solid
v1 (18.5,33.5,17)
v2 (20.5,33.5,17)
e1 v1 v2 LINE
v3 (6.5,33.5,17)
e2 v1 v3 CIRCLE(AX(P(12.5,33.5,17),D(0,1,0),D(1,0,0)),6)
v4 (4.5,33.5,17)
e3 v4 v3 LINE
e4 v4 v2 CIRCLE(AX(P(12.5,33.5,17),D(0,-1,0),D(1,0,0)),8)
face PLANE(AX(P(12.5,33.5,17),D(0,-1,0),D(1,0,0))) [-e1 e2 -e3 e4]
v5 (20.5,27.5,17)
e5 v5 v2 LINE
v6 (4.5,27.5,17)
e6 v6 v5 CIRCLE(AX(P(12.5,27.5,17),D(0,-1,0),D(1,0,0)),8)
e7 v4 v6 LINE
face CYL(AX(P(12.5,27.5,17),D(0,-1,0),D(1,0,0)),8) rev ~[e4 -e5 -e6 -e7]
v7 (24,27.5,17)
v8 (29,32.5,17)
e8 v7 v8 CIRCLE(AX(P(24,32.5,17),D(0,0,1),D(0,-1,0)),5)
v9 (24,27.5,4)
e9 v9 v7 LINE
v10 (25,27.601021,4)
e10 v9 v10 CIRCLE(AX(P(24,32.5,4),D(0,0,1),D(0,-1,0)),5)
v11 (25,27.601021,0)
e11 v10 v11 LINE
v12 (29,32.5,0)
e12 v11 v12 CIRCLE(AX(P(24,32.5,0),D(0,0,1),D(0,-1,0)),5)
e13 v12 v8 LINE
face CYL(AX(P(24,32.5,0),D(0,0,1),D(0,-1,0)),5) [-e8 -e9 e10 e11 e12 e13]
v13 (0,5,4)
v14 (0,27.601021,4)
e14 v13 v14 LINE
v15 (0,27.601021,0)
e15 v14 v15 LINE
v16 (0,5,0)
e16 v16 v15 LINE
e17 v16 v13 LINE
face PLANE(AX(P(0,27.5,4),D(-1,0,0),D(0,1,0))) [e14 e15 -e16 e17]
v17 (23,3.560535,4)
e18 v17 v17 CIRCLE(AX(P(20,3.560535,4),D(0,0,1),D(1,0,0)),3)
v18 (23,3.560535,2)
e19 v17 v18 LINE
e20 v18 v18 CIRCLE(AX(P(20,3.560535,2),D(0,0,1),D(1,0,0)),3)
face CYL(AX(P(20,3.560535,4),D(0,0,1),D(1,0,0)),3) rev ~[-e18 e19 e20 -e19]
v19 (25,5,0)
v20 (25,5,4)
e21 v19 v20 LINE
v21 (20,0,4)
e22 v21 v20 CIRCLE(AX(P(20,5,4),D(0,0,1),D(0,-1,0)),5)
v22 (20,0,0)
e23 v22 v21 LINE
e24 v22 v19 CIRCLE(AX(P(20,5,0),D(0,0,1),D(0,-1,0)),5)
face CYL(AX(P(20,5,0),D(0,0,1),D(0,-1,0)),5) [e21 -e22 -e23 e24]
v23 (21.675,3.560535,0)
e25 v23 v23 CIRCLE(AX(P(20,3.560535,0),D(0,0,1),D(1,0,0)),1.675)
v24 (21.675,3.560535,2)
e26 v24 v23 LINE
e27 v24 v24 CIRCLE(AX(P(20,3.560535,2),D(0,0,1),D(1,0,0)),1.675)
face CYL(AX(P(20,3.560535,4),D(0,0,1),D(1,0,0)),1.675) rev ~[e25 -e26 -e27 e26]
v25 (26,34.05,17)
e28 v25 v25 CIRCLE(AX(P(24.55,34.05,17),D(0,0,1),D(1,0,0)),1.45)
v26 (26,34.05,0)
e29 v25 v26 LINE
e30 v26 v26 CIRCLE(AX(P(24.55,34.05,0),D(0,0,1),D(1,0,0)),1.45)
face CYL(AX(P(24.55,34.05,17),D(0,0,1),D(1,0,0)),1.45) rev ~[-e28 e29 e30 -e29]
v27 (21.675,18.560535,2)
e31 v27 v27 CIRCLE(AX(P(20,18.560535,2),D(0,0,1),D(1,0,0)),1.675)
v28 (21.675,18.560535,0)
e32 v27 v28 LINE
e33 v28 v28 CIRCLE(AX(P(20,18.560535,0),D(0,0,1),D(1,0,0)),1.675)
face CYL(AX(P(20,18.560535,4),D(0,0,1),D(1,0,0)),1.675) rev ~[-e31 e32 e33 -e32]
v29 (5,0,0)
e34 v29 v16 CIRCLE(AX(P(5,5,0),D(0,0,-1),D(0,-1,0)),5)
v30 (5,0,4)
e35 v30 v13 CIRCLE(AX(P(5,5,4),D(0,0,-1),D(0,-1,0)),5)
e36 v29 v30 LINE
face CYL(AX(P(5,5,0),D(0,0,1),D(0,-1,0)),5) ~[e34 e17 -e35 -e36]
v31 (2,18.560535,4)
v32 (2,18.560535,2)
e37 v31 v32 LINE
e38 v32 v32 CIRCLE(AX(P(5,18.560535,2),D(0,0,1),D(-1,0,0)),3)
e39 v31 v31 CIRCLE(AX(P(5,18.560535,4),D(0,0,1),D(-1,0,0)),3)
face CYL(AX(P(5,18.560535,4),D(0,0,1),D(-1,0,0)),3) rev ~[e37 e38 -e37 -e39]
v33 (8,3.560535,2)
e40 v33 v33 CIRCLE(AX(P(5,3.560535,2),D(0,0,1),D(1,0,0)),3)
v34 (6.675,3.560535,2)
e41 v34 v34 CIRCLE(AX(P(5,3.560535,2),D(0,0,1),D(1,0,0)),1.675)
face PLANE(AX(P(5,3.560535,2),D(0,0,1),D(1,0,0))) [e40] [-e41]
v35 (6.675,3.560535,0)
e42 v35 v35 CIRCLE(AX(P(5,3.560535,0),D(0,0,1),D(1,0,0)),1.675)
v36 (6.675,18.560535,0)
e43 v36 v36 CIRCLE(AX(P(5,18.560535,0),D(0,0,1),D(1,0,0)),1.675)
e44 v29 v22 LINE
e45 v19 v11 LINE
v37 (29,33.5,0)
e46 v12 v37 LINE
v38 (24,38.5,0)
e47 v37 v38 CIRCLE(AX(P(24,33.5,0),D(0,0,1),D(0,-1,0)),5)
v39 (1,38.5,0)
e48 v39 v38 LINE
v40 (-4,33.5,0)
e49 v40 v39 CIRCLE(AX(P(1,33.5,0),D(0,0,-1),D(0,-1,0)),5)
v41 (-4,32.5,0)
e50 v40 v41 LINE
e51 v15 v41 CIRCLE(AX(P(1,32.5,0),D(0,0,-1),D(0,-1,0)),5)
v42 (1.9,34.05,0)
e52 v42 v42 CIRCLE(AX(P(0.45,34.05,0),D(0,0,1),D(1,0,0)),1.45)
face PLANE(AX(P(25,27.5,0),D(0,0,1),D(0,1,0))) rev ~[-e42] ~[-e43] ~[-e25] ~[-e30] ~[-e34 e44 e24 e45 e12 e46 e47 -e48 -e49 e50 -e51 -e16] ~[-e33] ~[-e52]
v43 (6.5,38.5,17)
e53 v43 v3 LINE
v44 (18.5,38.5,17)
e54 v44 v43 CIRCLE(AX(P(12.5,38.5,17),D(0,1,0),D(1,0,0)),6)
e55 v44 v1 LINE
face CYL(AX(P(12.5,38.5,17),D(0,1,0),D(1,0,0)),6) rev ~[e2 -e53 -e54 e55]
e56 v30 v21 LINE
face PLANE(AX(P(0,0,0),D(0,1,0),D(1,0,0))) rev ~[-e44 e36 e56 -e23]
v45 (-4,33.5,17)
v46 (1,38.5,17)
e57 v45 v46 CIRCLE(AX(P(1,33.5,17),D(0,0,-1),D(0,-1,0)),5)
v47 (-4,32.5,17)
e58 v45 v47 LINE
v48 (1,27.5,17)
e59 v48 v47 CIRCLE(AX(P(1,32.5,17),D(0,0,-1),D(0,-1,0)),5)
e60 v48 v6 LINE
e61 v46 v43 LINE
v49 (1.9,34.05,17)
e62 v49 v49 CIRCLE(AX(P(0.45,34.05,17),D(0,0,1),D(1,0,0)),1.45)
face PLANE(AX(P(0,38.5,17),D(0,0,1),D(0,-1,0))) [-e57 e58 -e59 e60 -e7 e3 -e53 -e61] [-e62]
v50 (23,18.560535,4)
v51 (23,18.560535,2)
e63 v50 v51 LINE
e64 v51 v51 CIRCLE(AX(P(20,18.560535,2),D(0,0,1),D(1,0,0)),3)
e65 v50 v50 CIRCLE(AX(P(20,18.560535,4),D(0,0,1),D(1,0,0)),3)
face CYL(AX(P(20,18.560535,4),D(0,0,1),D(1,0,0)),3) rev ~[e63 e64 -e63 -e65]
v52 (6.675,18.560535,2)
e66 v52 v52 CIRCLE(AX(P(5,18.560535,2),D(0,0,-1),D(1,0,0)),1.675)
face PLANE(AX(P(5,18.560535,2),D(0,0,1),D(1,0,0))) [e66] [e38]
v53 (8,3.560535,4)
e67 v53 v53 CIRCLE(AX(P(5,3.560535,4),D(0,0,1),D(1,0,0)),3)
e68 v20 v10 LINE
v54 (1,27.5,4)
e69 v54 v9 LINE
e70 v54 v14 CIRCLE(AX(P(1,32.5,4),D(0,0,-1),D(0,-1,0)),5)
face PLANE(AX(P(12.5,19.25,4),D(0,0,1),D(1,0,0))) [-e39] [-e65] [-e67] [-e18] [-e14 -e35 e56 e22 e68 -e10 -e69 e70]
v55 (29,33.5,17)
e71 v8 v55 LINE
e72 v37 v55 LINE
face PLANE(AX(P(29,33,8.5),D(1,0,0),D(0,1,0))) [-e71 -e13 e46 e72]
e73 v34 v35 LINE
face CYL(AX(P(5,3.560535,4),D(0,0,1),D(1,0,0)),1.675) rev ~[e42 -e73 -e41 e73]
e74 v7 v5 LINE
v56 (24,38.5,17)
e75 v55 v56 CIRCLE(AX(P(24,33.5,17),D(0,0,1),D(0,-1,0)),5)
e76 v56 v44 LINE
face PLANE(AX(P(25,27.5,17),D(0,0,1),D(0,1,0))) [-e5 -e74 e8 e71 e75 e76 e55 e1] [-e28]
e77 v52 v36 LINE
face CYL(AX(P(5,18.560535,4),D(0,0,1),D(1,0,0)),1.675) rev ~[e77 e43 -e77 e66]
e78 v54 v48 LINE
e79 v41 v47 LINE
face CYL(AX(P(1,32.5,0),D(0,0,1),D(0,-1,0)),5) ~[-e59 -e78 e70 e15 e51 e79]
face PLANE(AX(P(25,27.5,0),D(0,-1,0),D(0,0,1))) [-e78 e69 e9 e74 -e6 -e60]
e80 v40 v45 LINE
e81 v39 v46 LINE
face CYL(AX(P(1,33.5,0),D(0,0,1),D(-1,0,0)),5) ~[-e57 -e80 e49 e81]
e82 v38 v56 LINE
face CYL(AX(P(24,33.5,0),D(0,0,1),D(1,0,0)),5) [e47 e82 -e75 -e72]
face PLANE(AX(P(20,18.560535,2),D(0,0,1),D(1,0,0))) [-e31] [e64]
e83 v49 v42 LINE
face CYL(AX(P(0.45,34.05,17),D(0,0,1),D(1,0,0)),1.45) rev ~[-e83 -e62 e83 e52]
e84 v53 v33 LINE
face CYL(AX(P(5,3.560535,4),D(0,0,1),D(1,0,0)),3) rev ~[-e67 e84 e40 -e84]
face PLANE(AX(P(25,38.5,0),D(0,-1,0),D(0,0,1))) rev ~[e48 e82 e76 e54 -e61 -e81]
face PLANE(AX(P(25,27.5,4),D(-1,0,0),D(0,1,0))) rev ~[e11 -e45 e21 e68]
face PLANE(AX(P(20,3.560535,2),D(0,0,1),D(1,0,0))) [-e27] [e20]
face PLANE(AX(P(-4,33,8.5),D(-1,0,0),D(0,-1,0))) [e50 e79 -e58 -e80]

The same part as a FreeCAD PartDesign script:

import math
import FreeCAD as App
import Part
import Sketcher


def edges_at(feature, points):
    """Names of the edges that pass closest to the given points."""
    edges = feature.Shape.Edges
    near = lambda p: min(range(len(edges)), key=lambda i: edges[i].distToShape(Part.Vertex(*p))[0])
    return sorted({f"Edge{near(p) + 1}" for p in points})


def add_polygon(sketch, points):
    """Adds a closed chain of lines whose ends are joined by coincident constraints."""
    first, n = sketch.GeometryCount, len(points)
    for a, b in zip(points, points[1:] + points[:1]):
        sketch.addGeometry(Part.LineSegment(App.Vector(*a, 0), App.Vector(*b, 0)), False)
    for i in range(n):
        sketch.addConstraint(Sketcher.Constraint("Coincident", first + i, 2, first + (i + 1) % n, 1))

doc = App.newDocument("Part")
body = doc.addObject("PartDesign::Body", "Body")

sketch1 = body.newObject("Sketcher::SketchObject", "Sketch")
sketch1.AttachmentSupport = (doc.getObject("XY_Plane"), [""])
sketch1.MapMode = "FlatFace"
add_polygon(sketch1, [(0, 38.5), (0, 0), (25, 0), (25, 38.5)])
sketch1.addConstraint(Sketcher.Constraint("Vertical", 0))
sketch1.addConstraint(Sketcher.Constraint("Horizontal", 1))
sketch1.addConstraint(Sketcher.Constraint("Vertical", 2))
sketch1.addConstraint(Sketcher.Constraint("Horizontal", 3))
sketch1.addConstraint(Sketcher.Constraint("Coincident", 0, 2, -1, 1))
sketch1.addConstraint(Sketcher.Constraint("DistanceX", 1, 1, 1, 2, 25.0))
sketch1.addConstraint(Sketcher.Constraint("DistanceY", 0, 2, 0, 1, 38.5))
pad1 = body.newObject("PartDesign::Pad", "Pad")
pad1.Profile = sketch1
pad1.Length = 4

sketch2 = body.newObject("Sketcher::SketchObject", "Sketch001")
sketch2.AttachmentSupport = (doc.getObject("XY_Plane"), [""])
sketch2.MapMode = "FlatFace"
sketch2.AttachmentOffset = App.Placement(App.Vector(0, 0, 4), App.Rotation())
sketch2.addGeometry(Part.Circle(App.Vector(5, 18.560535, 0), App.Vector(0, 0, 1), 1.675), False)
sketch2.addGeometry(Part.Circle(App.Vector(20, 18.560535, 0), App.Vector(0, 0, 1), 1.675), False)
sketch2.addGeometry(Part.Circle(App.Vector(20, 3.560535, 0), App.Vector(0, 0, 1), 1.675), False)
sketch2.addGeometry(Part.Circle(App.Vector(5, 3.560535, 0), App.Vector(0, 0, 1), 1.675), False)
sketch2.addConstraint(Sketcher.Constraint("Equal", 0, 1))
sketch2.addConstraint(Sketcher.Constraint("Equal", 1, 2))
sketch2.addConstraint(Sketcher.Constraint("Equal", 2, 3))
sketch2.addConstraint(Sketcher.Constraint("Horizontal", 0, 3, 1, 3))
sketch2.addConstraint(Sketcher.Constraint("Horizontal", 2, 3, 3, 3))
sketch2.addConstraint(Sketcher.Constraint("Vertical", 1, 3, 2, 3))
sketch2.addConstraint(Sketcher.Constraint("Vertical", 0, 3, 3, 3))
sketch2.addConstraint(Sketcher.Constraint("Diameter", 0, 3.35))
sketch2.addConstraint(Sketcher.Constraint("DistanceX", -1, 1, 0, 3, 5.0))
sketch2.addConstraint(Sketcher.Constraint("DistanceX", -1, 1, 1, 3, 20.0))
sketch2.addConstraint(Sketcher.Constraint("DistanceY", 2, 3, 1, 3, 15.0))
sketch2.addConstraint(Sketcher.Constraint("DistanceY", -1, 1, 0, 3, 18.560535))
pocket1 = body.newObject("PartDesign::Pocket", "Pocket")
pocket1.Profile = sketch2
pocket1.Length = 25

sketch3 = body.newObject("Sketcher::SketchObject", "Sketch002")
sketch3.AttachmentSupport = (doc.getObject("XY_Plane"), [""])
sketch3.MapMode = "FlatFace"
sketch3.AttachmentOffset = App.Placement(App.Vector(0, 0, 4), App.Rotation())
add_polygon(sketch3, [(0, 38.5), (0, 27.5), (25, 27.5), (25, 38.5)])
sketch3.addConstraint(Sketcher.Constraint("Vertical", 0))
sketch3.addConstraint(Sketcher.Constraint("Horizontal", 1))
sketch3.addConstraint(Sketcher.Constraint("Vertical", 2))
sketch3.addConstraint(Sketcher.Constraint("Horizontal", 3))
sketch3.addConstraint(Sketcher.Constraint("PointOnObject", 0, 2, -2))
sketch3.addConstraint(Sketcher.Constraint("DistanceX", 1, 1, 1, 2, 25.0))
sketch3.addConstraint(Sketcher.Constraint("DistanceY", 0, 2, 0, 1, 11.0))
sketch3.addConstraint(Sketcher.Constraint("DistanceY", -1, 1, 0, 2, 27.5))
pad2 = body.newObject("PartDesign::Pad", "Pad001")
pad2.Profile = sketch3
pad2.Length = 13

sketch4 = body.newObject("Sketcher::SketchObject", "Sketch003")
sketch4.AttachmentSupport = (doc.getObject("XZ_Plane"), [""])
sketch4.MapMode = "FlatFace"
sketch4.AttachmentOffset = App.Placement(App.Vector(0, 0, -38.5), App.Rotation())
sketch4.addGeometry(Part.ArcOfCircle(Part.Circle(App.Vector(12.5, 17, 0), App.Vector(0, 0, 1), 6), math.radians(180), math.radians(360)), False)
sketch4.addGeometry(Part.LineSegment(App.Vector(6.5, 17, 0), App.Vector(18.5, 17, 0)), False)
sketch4.addConstraint(Sketcher.Constraint("Coincident", 0, 1, 1, 1))
sketch4.addConstraint(Sketcher.Constraint("Coincident", 1, 2, 0, 2))
sketch4.addConstraint(Sketcher.Constraint("Horizontal", 1))
sketch4.addConstraint(Sketcher.Constraint("Radius", 0, 6.0))
sketch4.addConstraint(Sketcher.Constraint("DistanceY", -1, 1, 0, 3, 17.0))
sketch4.addConstraint(Sketcher.Constraint("DistanceY", -1, 1, 0, 1, 17.0))
sketch4.addConstraint(Sketcher.Constraint("DistanceX", -1, 1, 0, 3, 12.5))
pocket2 = body.newObject("PartDesign::Pocket", "Pocket001")
pocket2.Profile = sketch4
pocket2.Length = 6
pocket2.Reversed = True

sketch5 = body.newObject("Sketcher::SketchObject", "Sketch004")
sketch5.AttachmentSupport = (doc.getObject("XZ_Plane"), [""])
sketch5.MapMode = "FlatFace"
sketch5.AttachmentOffset = App.Placement(App.Vector(0, 0, -27.5), App.Rotation())
sketch5.addGeometry(Part.Circle(App.Vector(12.5, 17, 0), App.Vector(0, 0, 1), 8), False)
sketch5.addConstraint(Sketcher.Constraint("Diameter", 0, 16.0))
sketch5.addConstraint(Sketcher.Constraint("DistanceY", -1, 1, 0, 3, 17.0))
sketch5.addConstraint(Sketcher.Constraint("DistanceX", -1, 1, 0, 3, 12.5))
pocket3 = body.newObject("PartDesign::Pocket", "Pocket002")
pocket3.Profile = sketch5
pocket3.Length = 6

sketch6 = body.newObject("Sketcher::SketchObject", "Sketch005")
sketch6.AttachmentSupport = (doc.getObject("XY_Plane"), [""])
sketch6.MapMode = "FlatFace"
sketch6.AttachmentOffset = App.Placement(App.Vector(0, 0, 4), App.Rotation())
sketch6.addGeometry(Part.Circle(App.Vector(5, 18.560535, 0), App.Vector(0, 0, 1), 3), False)
sketch6.addGeometry(Part.Circle(App.Vector(5, 18.560535, 0), App.Vector(0, 0, 1), 1.675), False)
sketch6.addGeometry(Part.Circle(App.Vector(20, 18.560535, 0), App.Vector(0, 0, 1), 3), False)
sketch6.addGeometry(Part.Circle(App.Vector(20, 18.560535, 0), App.Vector(0, 0, 1), 1.675), False)
sketch6.addGeometry(Part.Circle(App.Vector(20, 3.560535, 0), App.Vector(0, 0, 1), 3), False)
sketch6.addGeometry(Part.Circle(App.Vector(20, 3.560535, 0), App.Vector(0, 0, 1), 1.675), False)
sketch6.addGeometry(Part.Circle(App.Vector(5, 3.560535, 0), App.Vector(0, 0, 1), 3), False)
sketch6.addGeometry(Part.Circle(App.Vector(5, 3.560535, 0), App.Vector(0, 0, 1), 1.675), False)
sketch6.addConstraint(Sketcher.Constraint("Coincident", 1, 3, 0, 3))
sketch6.addConstraint(Sketcher.Constraint("Coincident", 3, 3, 2, 3))
sketch6.addConstraint(Sketcher.Constraint("Coincident", 5, 3, 4, 3))
sketch6.addConstraint(Sketcher.Constraint("Coincident", 7, 3, 6, 3))
sketch6.addConstraint(Sketcher.Constraint("Equal", 0, 2))
sketch6.addConstraint(Sketcher.Constraint("Equal", 1, 3))
sketch6.addConstraint(Sketcher.Constraint("Equal", 2, 4))
sketch6.addConstraint(Sketcher.Constraint("Equal", 3, 5))
sketch6.addConstraint(Sketcher.Constraint("Equal", 4, 6))
sketch6.addConstraint(Sketcher.Constraint("Equal", 5, 7))
sketch6.addConstraint(Sketcher.Constraint("Horizontal", 1, 3, 2, 3))
sketch6.addConstraint(Sketcher.Constraint("Horizontal", 5, 3, 6, 3))
sketch6.addConstraint(Sketcher.Constraint("Vertical", 3, 3, 4, 3))
sketch6.addConstraint(Sketcher.Constraint("Vertical", 1, 3, 6, 3))
sketch6.addConstraint(Sketcher.Constraint("Diameter", 0, 6.0))
sketch6.addConstraint(Sketcher.Constraint("Diameter", 1, 3.35))
sketch6.addConstraint(Sketcher.Constraint("DistanceX", -1, 1, 0, 3, 5.0))
sketch6.addConstraint(Sketcher.Constraint("DistanceX", -1, 1, 2, 3, 20.0))
sketch6.addConstraint(Sketcher.Constraint("DistanceY", 4, 3, 2, 3, 15.0))
sketch6.addConstraint(Sketcher.Constraint("DistanceY", -1, 1, 0, 3, 18.560535))
pocket4 = body.newObject("PartDesign::Pocket", "Pocket003")
pocket4.Profile = sketch6
pocket4.Length = 2

sketch7 = body.newObject("Sketcher::SketchObject", "Sketch006")
sketch7.AttachmentSupport = (doc.getObject("YZ_Plane"), [""])
sketch7.MapMode = "FlatFace"
add_polygon(sketch7, [(38.5, 17), (38.5, 0), (27.5, 0), (27.5, 17)])
sketch7.addConstraint(Sketcher.Constraint("Vertical", 0))
sketch7.addConstraint(Sketcher.Constraint("Horizontal", 1))
sketch7.addConstraint(Sketcher.Constraint("Vertical", 2))
sketch7.addConstraint(Sketcher.Constraint("Horizontal", 3))
sketch7.addConstraint(Sketcher.Constraint("PointOnObject", 0, 2, -1))
sketch7.addConstraint(Sketcher.Constraint("DistanceX", 1, 2, 1, 1, 11.0))
sketch7.addConstraint(Sketcher.Constraint("DistanceY", 0, 2, 0, 1, 17.0))
sketch7.addConstraint(Sketcher.Constraint("DistanceX", -1, 1, 0, 2, 38.5))
pad3 = body.newObject("PartDesign::Pad", "Pad002")
pad3.Profile = sketch7
pad3.Length = 4
pad3.Reversed = True
doc.recompute()

fillet = body.newObject("PartDesign::Fillet", "Fillet")
fillet.Base = (pad3, edges_at(pad3, [(0, 0, 2), (25, 0, 2)]))
fillet.Radius = 5

sketch8 = body.newObject("Sketcher::SketchObject", "Sketch007")
sketch8.AttachmentSupport = (doc.getObject("YZ_Plane"), [""])
sketch8.MapMode = "FlatFace"
sketch8.AttachmentOffset = App.Placement(App.Vector(0, 0, 25), App.Rotation())
add_polygon(sketch8, [(27.5, 17), (27.5, 0), (38.5, 0), (38.5, 17)])
sketch8.addConstraint(Sketcher.Constraint("Vertical", 0))
sketch8.addConstraint(Sketcher.Constraint("Horizontal", 1))
sketch8.addConstraint(Sketcher.Constraint("Vertical", 2))
sketch8.addConstraint(Sketcher.Constraint("Horizontal", 3))
sketch8.addConstraint(Sketcher.Constraint("PointOnObject", 0, 2, -1))
sketch8.addConstraint(Sketcher.Constraint("DistanceX", 1, 1, 1, 2, 11.0))
sketch8.addConstraint(Sketcher.Constraint("DistanceY", 0, 2, 0, 1, 17.0))
sketch8.addConstraint(Sketcher.Constraint("DistanceX", -1, 1, 0, 2, 27.5))
pad4 = body.newObject("PartDesign::Pad", "Pad003")
pad4.Profile = sketch8
pad4.Length = 4

sketch9 = body.newObject("Sketcher::SketchObject", "Sketch008")
sketch9.AttachmentSupport = (doc.getObject("YZ_Plane"), [""])
sketch9.MapMode = "FlatFace"
sketch9.AttachmentOffset = App.Placement(App.Vector(0, 0, 25), App.Rotation())
add_polygon(sketch9, [(27.5, 17), (27.5, 0), (38.5, 0), (38.5, 17)])
sketch9.addConstraint(Sketcher.Constraint("Vertical", 0))
sketch9.addConstraint(Sketcher.Constraint("Horizontal", 1))
sketch9.addConstraint(Sketcher.Constraint("Vertical", 2))
sketch9.addConstraint(Sketcher.Constraint("Horizontal", 3))
sketch9.addConstraint(Sketcher.Constraint("PointOnObject", 0, 2, -1))
sketch9.addConstraint(Sketcher.Constraint("DistanceX", 1, 1, 1, 2, 11.0))
sketch9.addConstraint(Sketcher.Constraint("DistanceY", 0, 2, 0, 1, 17.0))
sketch9.addConstraint(Sketcher.Constraint("DistanceX", -1, 1, 0, 2, 27.5))
pad5 = body.newObject("PartDesign::Pad", "Pad004")
pad5.Profile = sketch9
pad5.Length = 2

sketch10 = body.newObject("Sketcher::SketchObject", "Sketch009")
sketch10.AttachmentSupport = (doc.getObject("XY_Plane"), [""])
sketch10.MapMode = "FlatFace"
sketch10.AttachmentOffset = App.Placement(App.Vector(0, 0, 17), App.Rotation())
sketch10.addGeometry(Part.Circle(App.Vector(0.45, 34.05, 0), App.Vector(0, 0, 1), 1.45), False)
sketch10.addGeometry(Part.Circle(App.Vector(24.55, 34.05, 0), App.Vector(0, 0, 1), 1.45), False)
sketch10.addConstraint(Sketcher.Constraint("Equal", 0, 1))
sketch10.addConstraint(Sketcher.Constraint("Horizontal", 0, 3, 1, 3))
sketch10.addConstraint(Sketcher.Constraint("Diameter", 0, 2.9))
sketch10.addConstraint(Sketcher.Constraint("DistanceX", 0, 3, 1, 3, 24.1))
sketch10.addConstraint(Sketcher.Constraint("DistanceX", -1, 1, 0, 3, 0.45))
sketch10.addConstraint(Sketcher.Constraint("DistanceY", -1, 1, 0, 3, 34.05))
pocket5 = body.newObject("PartDesign::Pocket", "Pocket004")
pocket5.Profile = sketch10
pocket5.Length = 25
doc.recompute()

fillet2 = body.newObject("PartDesign::Fillet", "Fillet001")
fillet2.Base = (pocket5, edges_at(pocket5, [
    (-4, 38.5, 8.5),
    (-4, 27.5, 8.5),
    (29, 27.5, 8.5),
    (29, 38.5, 8.5),
]))
fillet2.Radius = 5

sketch11 = body.newObject("Sketcher::SketchObject", "Sketch010")
sketch11.AttachmentSupport = (doc.getObject("XY_Plane"), [""])
sketch11.MapMode = "FlatFace"
sketch11.AttachmentOffset = App.Placement(App.Vector(0, 0, 4), App.Rotation())
sketch11.addGeometry(Part.Circle(App.Vector(5, 18.560535, 0), App.Vector(0, 0, 1), 3), False)
sketch11.addGeometry(Part.Circle(App.Vector(20, 18.560535, 0), App.Vector(0, 0, 1), 3), False)
sketch11.addConstraint(Sketcher.Constraint("Equal", 0, 1))
sketch11.addConstraint(Sketcher.Constraint("Horizontal", 0, 3, 1, 3))
sketch11.addConstraint(Sketcher.Constraint("Diameter", 0, 6.0))
sketch11.addConstraint(Sketcher.Constraint("DistanceX", -1, 1, 0, 3, 5.0))
sketch11.addConstraint(Sketcher.Constraint("DistanceX", -1, 1, 1, 3, 20.0))
sketch11.addConstraint(Sketcher.Constraint("DistanceY", -1, 1, 0, 3, 18.560535))
pocket6 = body.newObject("PartDesign::Pocket", "Pocket005")
pocket6.Profile = sketch11
pocket6.Length = 25
pocket6.Reversed = True

doc.recompute()
